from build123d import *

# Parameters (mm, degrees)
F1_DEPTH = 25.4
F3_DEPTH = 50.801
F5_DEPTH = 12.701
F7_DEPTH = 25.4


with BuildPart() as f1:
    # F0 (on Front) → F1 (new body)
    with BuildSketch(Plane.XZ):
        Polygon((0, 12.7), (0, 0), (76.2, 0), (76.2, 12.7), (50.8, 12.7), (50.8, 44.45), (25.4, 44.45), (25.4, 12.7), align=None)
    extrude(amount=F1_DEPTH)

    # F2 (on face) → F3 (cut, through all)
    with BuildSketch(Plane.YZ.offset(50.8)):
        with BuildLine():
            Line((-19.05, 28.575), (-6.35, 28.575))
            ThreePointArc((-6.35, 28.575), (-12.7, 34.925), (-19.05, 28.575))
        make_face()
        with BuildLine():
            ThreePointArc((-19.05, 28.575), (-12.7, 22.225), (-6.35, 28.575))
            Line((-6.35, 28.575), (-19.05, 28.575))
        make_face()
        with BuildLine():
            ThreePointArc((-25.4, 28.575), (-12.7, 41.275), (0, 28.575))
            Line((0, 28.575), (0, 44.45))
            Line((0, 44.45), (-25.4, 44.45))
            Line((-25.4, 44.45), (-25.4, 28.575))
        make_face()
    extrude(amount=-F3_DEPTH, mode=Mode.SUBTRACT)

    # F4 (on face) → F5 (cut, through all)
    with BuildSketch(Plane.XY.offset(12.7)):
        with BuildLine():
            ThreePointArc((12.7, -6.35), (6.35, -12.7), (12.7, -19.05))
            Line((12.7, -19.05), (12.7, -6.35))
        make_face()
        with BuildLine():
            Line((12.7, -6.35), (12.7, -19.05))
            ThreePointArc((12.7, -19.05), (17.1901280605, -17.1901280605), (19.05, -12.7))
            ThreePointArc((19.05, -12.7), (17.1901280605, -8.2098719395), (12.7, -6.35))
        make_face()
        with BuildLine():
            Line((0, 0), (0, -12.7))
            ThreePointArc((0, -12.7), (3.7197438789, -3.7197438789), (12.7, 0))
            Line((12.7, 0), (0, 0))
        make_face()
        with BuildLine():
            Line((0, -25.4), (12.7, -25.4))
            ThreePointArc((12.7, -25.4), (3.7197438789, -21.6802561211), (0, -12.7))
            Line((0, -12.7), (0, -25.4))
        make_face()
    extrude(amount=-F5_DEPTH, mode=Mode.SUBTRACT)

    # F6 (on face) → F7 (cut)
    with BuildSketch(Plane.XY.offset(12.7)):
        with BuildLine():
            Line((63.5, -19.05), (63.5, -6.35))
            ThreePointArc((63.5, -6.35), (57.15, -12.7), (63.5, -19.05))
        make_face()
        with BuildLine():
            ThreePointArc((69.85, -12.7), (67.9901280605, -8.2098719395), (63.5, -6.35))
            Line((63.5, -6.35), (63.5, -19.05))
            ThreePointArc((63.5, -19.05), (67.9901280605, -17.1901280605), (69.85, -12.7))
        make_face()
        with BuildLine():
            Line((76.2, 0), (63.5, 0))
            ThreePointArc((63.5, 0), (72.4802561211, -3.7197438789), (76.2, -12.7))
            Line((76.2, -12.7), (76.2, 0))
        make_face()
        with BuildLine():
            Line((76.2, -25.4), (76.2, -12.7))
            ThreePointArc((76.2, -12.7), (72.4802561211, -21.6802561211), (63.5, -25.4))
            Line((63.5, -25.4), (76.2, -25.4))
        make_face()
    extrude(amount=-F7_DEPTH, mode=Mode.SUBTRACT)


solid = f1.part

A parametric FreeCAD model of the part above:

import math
import FreeCAD as App
import Part
import Sketcher
Q = App.Units.Quantity

doc = App.newDocument("Part")
body = doc.addObject("PartDesign::Body", "Body")

# Sketch on XZ plane
sketch1 = doc.addObject("Sketcher::SketchObject", "Sketch")
body.addObject(sketch1)
sketch1.AttachmentSupport = (doc.XZ_Plane, [""])
sketch1.MapMode = "FlatFace"
sketch1.addGeometry(Part.LineSegment(App.Vector(0, 13, 0), App.Vector(0, 0, 0)), False)
sketch1.addGeometry(Part.LineSegment(App.Vector(0, 0, 0), App.Vector(76, 0, 0)), False)
sketch1.addGeometry(Part.LineSegment(App.Vector(76, 0, 0), App.Vector(76, 13, 0)), False)
sketch1.addGeometry(Part.LineSegment(App.Vector(76, 13, 0), App.Vector(51, 13, 0)), False)
sketch1.addGeometry(Part.LineSegment(App.Vector(51, 13, 0), App.Vector(51, 44, 0)), False)
sketch1.addGeometry(Part.LineSegment(App.Vector(51, 44, 0), App.Vector(25, 44, 0)), False)
sketch1.addGeometry(Part.LineSegment(App.Vector(25, 44, 0), App.Vector(25, 13, 0)), False)
sketch1.addGeometry(Part.LineSegment(App.Vector(25, 13, 0), App.Vector(0, 13, 0)), False)
sketch1.addConstraint(Sketcher.Constraint("Coincident", 0, 2, 1, 1))
sketch1.addConstraint(Sketcher.Constraint("Coincident", 1, 2, 2, 1))
sketch1.addConstraint(Sketcher.Constraint("Coincident", 2, 2, 3, 1))
sketch1.addConstraint(Sketcher.Constraint("Coincident", 3, 2, 4, 1))
sketch1.addConstraint(Sketcher.Constraint("Coincident", 4, 2, 5, 1))
sketch1.addConstraint(Sketcher.Constraint("Coincident", 5, 2, 6, 1))
sketch1.addConstraint(Sketcher.Constraint("Coincident", 6, 2, 7, 1))
sketch1.addConstraint(Sketcher.Constraint("Coincident", 7, 2, 0, 1))
sketch1.addConstraint(Sketcher.Constraint("Vertical", 0))
sketch1.addConstraint(Sketcher.Constraint("Horizontal", 1))
sketch1.addConstraint(Sketcher.Constraint("Vertical", 2))
sketch1.addConstraint(Sketcher.Constraint("Horizontal", 3))
sketch1.addConstraint(Sketcher.Constraint("Vertical", 4))
sketch1.addConstraint(Sketcher.Constraint("Horizontal", 5))
sketch1.addConstraint(Sketcher.Constraint("Vertical", 6))
sketch1.addConstraint(Sketcher.Constraint("Horizontal", 7))
sketch1.addConstraint(Sketcher.Constraint("Coincident", 0, 2, -1, 1))
sketch1.addConstraint(Sketcher.Constraint("Horizontal", 3, 2, 6, 2))
sketch1.addConstraint(Sketcher.Constraint("Equal", 3, 5))
sketch1.addConstraint(Sketcher.Constraint("Equal", 5, 7))
sketch1.addConstraint(Sketcher.Constraint("DistanceX", 1, 1, 1, 2, Q("3 in")))
sketch1.addConstraint(Sketcher.Constraint("DistanceY", 0, 2, 0, 1, Q("0.5 in")))
sketch1.addConstraint(Sketcher.Constraint("DistanceY", 4, 1, 4, 2, Q("1.25 in")))
pad1 = doc.addObject("PartDesign::Pad", "Pad")
body.addObject(pad1)
pad1.Profile = sketch1
pad1.Length = Q("1 in")

# Sketch on YZ plane
sketch2 = doc.addObject("Sketcher::SketchObject", "Sketch001")
body.addObject(sketch2)
sketch2.AttachmentSupport = (doc.YZ_Plane, [""])
sketch2.MapMode = "FlatFace"
sketch2.AttachmentOffset = App.Placement(App.Vector(0, 0, 2 * 25.4), App.Rotation())
sketch2.addGeometry(Part.Circle(App.Vector(-13, 29, 0), App.Vector(0, 0, 1), 6), False)
sketch2.addGeometry(Part.ArcOfCircle(Part.Circle(App.Vector(-13, 29, 0), App.Vector(0, 0, 1), 13), math.radians(0), math.radians(180)), False)
sketch2.addGeometry(Part.LineSegment(App.Vector(0, 29, 0), App.Vector(0, 44, 0)), False)
sketch2.addGeometry(Part.LineSegment(App.Vector(0, 44, 0), App.Vector(-25, 44, 0)), False)
sketch2.addGeometry(Part.LineSegment(App.Vector(-25, 44, 0), App.Vector(-25, 29, 0)), False)
sketch2.addConstraint(Sketcher.Constraint("Tangent", 1, 1, 2, 1))
sketch2.addConstraint(Sketcher.Constraint("Coincident", 2, 2, 3, 1))
sketch2.addConstraint(Sketcher.Constraint("Coincident", 3, 2, 4, 1))
sketch2.addConstraint(Sketcher.Constraint("Tangent", 4, 2, 1, 2))
sketch2.addConstraint(Sketcher.Constraint("Vertical", 2))
sketch2.addConstraint(Sketcher.Constraint("Horizontal", 3))
sketch2.addConstraint(Sketcher.Constraint("Vertical", 4))
sketch2.addConstraint(Sketcher.Constraint("Coincident", 1, 3, 0, 3))
sketch2.addConstraint(Sketcher.Constraint("PointOnObject", 1, 1, -2))
sketch2.addConstraint(Sketcher.Constraint("Diameter", 0, Q("0.5 in")))
sketch2.addConstraint(Sketcher.Constraint("Radius", 1, Q("0.5 in")))
sketch2.addConstraint(Sketcher.Constraint("DistanceY", 2, 1, 2, 2, Q("0.625 in")))
sketch2.addConstraint(Sketcher.Constraint("DistanceY", -1, 1, 2, 2, Q("1.75 in")))
pocket1 = doc.addObject("PartDesign::Pocket", "Pocket")
body.addObject(pocket1)
pocket1.Profile = sketch2
pocket1.Type = "ThroughAll"

# Sketch on XY plane
sketch3 = doc.addObject("Sketcher::SketchObject", "Sketch002")
body.addObject(sketch3)
sketch3.AttachmentSupport = (doc.XY_Plane, [""])
sketch3.MapMode = "FlatFace"
sketch3.AttachmentOffset = App.Placement(App.Vector(0, 0, 0.5 * 25.4), App.Rotation())
sketch3.addGeometry(Part.ArcOfCircle(Part.Circle(App.Vector(13, -13, 0), App.Vector(0, 0, 1), 6), math.radians(90), math.radians(270)), False)
sketch3.addGeometry(Part.ArcOfCircle(Part.Circle(App.Vector(13, -13, 0), App.Vector(0, 0, 1), 6), math.radians(-90), math.radians(0)), False)
sketch3.addGeometry(Part.ArcOfCircle(Part.Circle(App.Vector(13, -13, 0), App.Vector(0, 0, 1), 6), math.radians(0), math.radians(90)), False)
sketch3.addGeometry(Part.LineSegment(App.Vector(0, 0, 0), App.Vector(0, -13, 0)), False)
sketch3.addGeometry(Part.ArcOfCircle(Part.Circle(App.Vector(13, -13, 0), App.Vector(0, 0, 1), 13), math.radians(90), math.radians(180)), False)
sketch3.addGeometry(Part.LineSegment(App.Vector(13, 0, 0), App.Vector(0, 0, 0)), False)
sketch3.addGeometry(Part.LineSegment(App.Vector(0, -25, 0), App.Vector(13, -25, 0)), False)
sketch3.addGeometry(Part.ArcOfCircle(Part.Circle(App.Vector(13, -13, 0), App.Vector(0, 0, 1), 13), math.radians(180), math.radians(270)), False)
sketch3.addGeometry(Part.LineSegment(App.Vector(0, -13, 0), App.Vector(0, -25, 0)), False)
sketch3.addConstraint(Sketcher.Constraint("Tangent", 0, 2, 1, 1))
sketch3.addConstraint(Sketcher.Constraint("Tangent", 1, 2, 2, 1))
sketch3.addConstraint(Sketcher.Constraint("Tangent", 2, 2, 0, 1))
sketch3.addConstraint(Sketcher.Constraint("Tangent", 3, 2, 4, 2))
sketch3.addConstraint(Sketcher.Constraint("Tangent", 4, 1, 5, 1))
sketch3.addConstraint(Sketcher.Constraint("Coincident", 5, 2, 3, 1))
sketch3.addConstraint(Sketcher.Constraint("Tangent", 6, 2, 7, 2))
sketch3.addConstraint(Sketcher.Constraint("Tangent", 7, 1, 8, 1))
sketch3.addConstraint(Sketcher.Constraint("Coincident", 8, 2, 6, 1))
sketch3.addConstraint(Sketcher.Constraint("Vertical", 3))
sketch3.addConstraint(Sketcher.Constraint("Horizontal", 5))
sketch3.addConstraint(Sketcher.Constraint("Horizontal", 6))
sketch3.addConstraint(Sketcher.Constraint("Vertical", 8))
sketch3.addConstraint(Sketcher.Constraint("Coincident", 5, 2, -1, 1))
sketch3.addConstraint(Sketcher.Constraint("Coincident", 4, 3, 0, 3))
sketch3.addConstraint(Sketcher.Constraint("Coincident", 7, 3, 0, 3))
sketch3.addConstraint(Sketcher.Constraint("Equal", 4, 7))
sketch3.addConstraint(Sketcher.Constraint("Horizontal", 7, 3, 1, 2))
sketch3.addConstraint(Sketcher.Constraint("Vertical", 7, 3, 0, 2))
sketch3.addConstraint(Sketcher.Constraint("Vertical", 0, 2, 2, 2))
sketch3.addConstraint(Sketcher.Constraint("Radius", 4, Q("0.5 in")))
sketch3.addConstraint(Sketcher.Constraint("Radius", 0, Q("0.25 in")))
pocket2 = doc.addObject("PartDesign::Pocket", "Pocket001")
body.addObject(pocket2)
pocket2.Profile = sketch3
pocket2.Type = "ThroughAll"

# Sketch on XY plane
sketch4 = doc.addObject("Sketcher::SketchObject", "Sketch003")
body.addObject(sketch4)
sketch4.AttachmentSupport = (doc.XY_Plane, [""])
sketch4.MapMode = "FlatFace"
sketch4.AttachmentOffset = App.Placement(App.Vector(0, 0, 0.5 * 25.4), App.Rotation())
sketch4.addGeometry(Part.ArcOfCircle(Part.Circle(App.Vector(64, -13, 0), App.Vector(0, 0, 1), 6), math.radians(90), math.radians(270)), False)
sketch4.addGeometry(Part.ArcOfCircle(Part.Circle(App.Vector(64, -13, 0), App.Vector(0, 0, 1), 6), math.radians(-90), math.radians(0)), False)
sketch4.addGeometry(Part.ArcOfCircle(Part.Circle(App.Vector(64, -13, 0), App.Vector(0, 0, 1), 6), math.radians(0), math.radians(90)), False)
sketch4.addGeometry(Part.LineSegment(App.Vector(76, 0, 0), App.Vector(64, 0, 0)), False)
sketch4.addGeometry(Part.ArcOfCircle(Part.Circle(App.Vector(64, -13, 0), App.Vector(0, 0, 1), 13), math.radians(0), math.radians(90)), False)
sketch4.addGeometry(Part.LineSegment(App.Vector(76, -13, 0), App.Vector(76, 0, 0)), False)
sketch4.addGeometry(Part.LineSegment(App.Vector(76, -25, 0), App.Vector(76, -13, 0)), False)
sketch4.addGeometry(Part.ArcOfCircle(Part.Circle(App.Vector(64, -13, 0), App.Vector(0, 0, 1), 13), math.radians(-90), math.radians(0)), False)
sketch4.addGeometry(Part.LineSegment(App.Vector(64, -25, 0), App.Vector(76, -25, 0)), False)
sketch4.addConstraint(Sketcher.Constraint("Tangent", 0, 2, 1, 1))
sketch4.addConstraint(Sketcher.Constraint("Tangent", 1, 2, 2, 1))
sketch4.addConstraint(Sketcher.Constraint("Tangent", 2, 2, 0, 1))
sketch4.addConstraint(Sketcher.Constraint("Tangent", 3, 2, 4, 2))
sketch4.addConstraint(Sketcher.Constraint("Tangent", 4, 1, 5, 1))
sketch4.addConstraint(Sketcher.Constraint("Coincident", 5, 2, 3, 1))
sketch4.addConstraint(Sketcher.Constraint("Tangent", 6, 2, 7, 2))
sketch4.addConstraint(Sketcher.Constraint("Tangent", 7, 1, 8, 1))
sketch4.addConstraint(Sketcher.Constraint("Coincident", 8, 2, 6, 1))
sketch4.addConstraint(Sketcher.Constraint("Horizontal", 3))
sketch4.addConstraint(Sketcher.Constraint("Vertical", 5))
sketch4.addConstraint(Sketcher.Constraint("Vertical", 6))
sketch4.addConstraint(Sketcher.Constraint("Horizontal", 8))
sketch4.addConstraint(Sketcher.Constraint("Coincident", 4, 3, 0, 3))
sketch4.addConstraint(Sketcher.Constraint("Coincident", 7, 3, 0, 3))
sketch4.addConstraint(Sketcher.Constraint("Equal", 4, 7))
sketch4.addConstraint(Sketcher.Constraint("PointOnObject", 3, 2, -1))
sketch4.addConstraint(Sketcher.Constraint("Horizontal", 7, 3, 1, 2))
sketch4.addConstraint(Sketcher.Constraint("Vertical", 7, 3, 0, 2))
sketch4.addConstraint(Sketcher.Constraint("Vertical", 0, 2, 2, 2))
sketch4.addConstraint(Sketcher.Constraint("Radius", 4, Q("0.5 in")))
sketch4.addConstraint(Sketcher.Constraint("Radius", 0, Q("0.25 in")))
sketch4.addConstraint(Sketcher.Constraint("DistanceX", -1, 1, 4, 1, Q("3 in")))
pocket3 = doc.addObject("PartDesign::Pocket", "Pocket002")
body.addObject(pocket3)
pocket3.Profile = sketch4
pocket3.Length = Q("1 in")

doc.recompute()
